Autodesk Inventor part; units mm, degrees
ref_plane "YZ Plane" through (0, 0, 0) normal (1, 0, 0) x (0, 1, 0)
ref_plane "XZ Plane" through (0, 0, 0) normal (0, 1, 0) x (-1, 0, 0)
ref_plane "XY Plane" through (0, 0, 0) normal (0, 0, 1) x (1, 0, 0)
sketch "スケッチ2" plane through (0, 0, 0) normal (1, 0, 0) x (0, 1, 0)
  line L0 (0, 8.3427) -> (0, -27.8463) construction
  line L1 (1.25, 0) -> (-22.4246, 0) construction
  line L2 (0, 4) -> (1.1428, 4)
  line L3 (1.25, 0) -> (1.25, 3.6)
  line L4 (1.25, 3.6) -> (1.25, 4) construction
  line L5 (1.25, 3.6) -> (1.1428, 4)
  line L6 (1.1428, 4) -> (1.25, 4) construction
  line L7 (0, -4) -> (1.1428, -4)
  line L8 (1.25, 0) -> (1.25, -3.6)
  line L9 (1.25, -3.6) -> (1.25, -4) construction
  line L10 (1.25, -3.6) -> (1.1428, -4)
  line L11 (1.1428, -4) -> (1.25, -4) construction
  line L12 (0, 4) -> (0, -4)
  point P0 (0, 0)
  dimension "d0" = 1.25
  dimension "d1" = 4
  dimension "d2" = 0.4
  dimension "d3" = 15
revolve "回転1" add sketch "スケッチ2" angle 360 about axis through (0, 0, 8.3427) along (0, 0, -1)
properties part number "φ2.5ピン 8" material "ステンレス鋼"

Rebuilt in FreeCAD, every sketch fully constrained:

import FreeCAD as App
import Part
import Sketcher

V = App.Vector


def add_polygon(sketch, points):
    """Adds a closed chain of lines whose ends are joined by coincident constraints."""
    first, n = sketch.GeometryCount, len(points)
    for a, b in zip(points, points[1:] + points[:1]):
        sketch.addGeometry(Part.LineSegment(App.Vector(*a, 0), App.Vector(*b, 0)), False)
    for i in range(n):
        sketch.addConstraint(Sketcher.Constraint("Coincident", first + i, 2, first + (i + 1) % n, 1))

doc = App.newDocument("Part")
body = doc.addObject("PartDesign::Body", "Body")

# Sketch on YZ plane
sketch1 = doc.addObject("Sketcher::SketchObject", "Sketch")
body.addObject(sketch1)
sketch1.AttachmentSupport = (doc.YZ_Plane, [""])
sketch1.MapMode = "FlatFace"
add_polygon(sketch1, [(1.14, 4), (0, 4), (0, -4), (1.14, -4), (1.25, -3.6), (1.25, 3.6)])  # lines 0-5
sketch1.addConstraint(Sketcher.Constraint("Horizontal", 0))
sketch1.addConstraint(Sketcher.Constraint("Vertical", 1))
sketch1.addConstraint(Sketcher.Constraint("Horizontal", 2))
sketch1.addConstraint(Sketcher.Constraint("Vertical", 4))
sketch1.addConstraint(Sketcher.Constraint("Symmetric", 0, 2, 1, 2, -1, 1))
sketch1.addConstraint(Sketcher.Constraint("Vertical", 2, 2, 5, 2))
sketch1.addConstraint(Sketcher.Constraint("Equal", 3, 5))
sketch1.addConstraint(Sketcher.Constraint("DistanceY", -1, 1, 0, 2, 4.0))
sketch1.addConstraint(Sketcher.Constraint("DistanceY", 2, 2, 3, 2, 0.4))
sketch1.addConstraint(Sketcher.Constraint("DistanceX", -1, 1, 3, 2, 1.25))
sketch1.addConstraint(Sketcher.Constraint("Distance", 3, 0.414))
revolution = doc.addObject("PartDesign::Revolution", "Revolution")
body.addObject(revolution)
revolution.Profile = sketch1
revolution.ReferenceAxis = (sketch1, ["V_Axis"])
revolution.Angle = 360

doc.recompute()
